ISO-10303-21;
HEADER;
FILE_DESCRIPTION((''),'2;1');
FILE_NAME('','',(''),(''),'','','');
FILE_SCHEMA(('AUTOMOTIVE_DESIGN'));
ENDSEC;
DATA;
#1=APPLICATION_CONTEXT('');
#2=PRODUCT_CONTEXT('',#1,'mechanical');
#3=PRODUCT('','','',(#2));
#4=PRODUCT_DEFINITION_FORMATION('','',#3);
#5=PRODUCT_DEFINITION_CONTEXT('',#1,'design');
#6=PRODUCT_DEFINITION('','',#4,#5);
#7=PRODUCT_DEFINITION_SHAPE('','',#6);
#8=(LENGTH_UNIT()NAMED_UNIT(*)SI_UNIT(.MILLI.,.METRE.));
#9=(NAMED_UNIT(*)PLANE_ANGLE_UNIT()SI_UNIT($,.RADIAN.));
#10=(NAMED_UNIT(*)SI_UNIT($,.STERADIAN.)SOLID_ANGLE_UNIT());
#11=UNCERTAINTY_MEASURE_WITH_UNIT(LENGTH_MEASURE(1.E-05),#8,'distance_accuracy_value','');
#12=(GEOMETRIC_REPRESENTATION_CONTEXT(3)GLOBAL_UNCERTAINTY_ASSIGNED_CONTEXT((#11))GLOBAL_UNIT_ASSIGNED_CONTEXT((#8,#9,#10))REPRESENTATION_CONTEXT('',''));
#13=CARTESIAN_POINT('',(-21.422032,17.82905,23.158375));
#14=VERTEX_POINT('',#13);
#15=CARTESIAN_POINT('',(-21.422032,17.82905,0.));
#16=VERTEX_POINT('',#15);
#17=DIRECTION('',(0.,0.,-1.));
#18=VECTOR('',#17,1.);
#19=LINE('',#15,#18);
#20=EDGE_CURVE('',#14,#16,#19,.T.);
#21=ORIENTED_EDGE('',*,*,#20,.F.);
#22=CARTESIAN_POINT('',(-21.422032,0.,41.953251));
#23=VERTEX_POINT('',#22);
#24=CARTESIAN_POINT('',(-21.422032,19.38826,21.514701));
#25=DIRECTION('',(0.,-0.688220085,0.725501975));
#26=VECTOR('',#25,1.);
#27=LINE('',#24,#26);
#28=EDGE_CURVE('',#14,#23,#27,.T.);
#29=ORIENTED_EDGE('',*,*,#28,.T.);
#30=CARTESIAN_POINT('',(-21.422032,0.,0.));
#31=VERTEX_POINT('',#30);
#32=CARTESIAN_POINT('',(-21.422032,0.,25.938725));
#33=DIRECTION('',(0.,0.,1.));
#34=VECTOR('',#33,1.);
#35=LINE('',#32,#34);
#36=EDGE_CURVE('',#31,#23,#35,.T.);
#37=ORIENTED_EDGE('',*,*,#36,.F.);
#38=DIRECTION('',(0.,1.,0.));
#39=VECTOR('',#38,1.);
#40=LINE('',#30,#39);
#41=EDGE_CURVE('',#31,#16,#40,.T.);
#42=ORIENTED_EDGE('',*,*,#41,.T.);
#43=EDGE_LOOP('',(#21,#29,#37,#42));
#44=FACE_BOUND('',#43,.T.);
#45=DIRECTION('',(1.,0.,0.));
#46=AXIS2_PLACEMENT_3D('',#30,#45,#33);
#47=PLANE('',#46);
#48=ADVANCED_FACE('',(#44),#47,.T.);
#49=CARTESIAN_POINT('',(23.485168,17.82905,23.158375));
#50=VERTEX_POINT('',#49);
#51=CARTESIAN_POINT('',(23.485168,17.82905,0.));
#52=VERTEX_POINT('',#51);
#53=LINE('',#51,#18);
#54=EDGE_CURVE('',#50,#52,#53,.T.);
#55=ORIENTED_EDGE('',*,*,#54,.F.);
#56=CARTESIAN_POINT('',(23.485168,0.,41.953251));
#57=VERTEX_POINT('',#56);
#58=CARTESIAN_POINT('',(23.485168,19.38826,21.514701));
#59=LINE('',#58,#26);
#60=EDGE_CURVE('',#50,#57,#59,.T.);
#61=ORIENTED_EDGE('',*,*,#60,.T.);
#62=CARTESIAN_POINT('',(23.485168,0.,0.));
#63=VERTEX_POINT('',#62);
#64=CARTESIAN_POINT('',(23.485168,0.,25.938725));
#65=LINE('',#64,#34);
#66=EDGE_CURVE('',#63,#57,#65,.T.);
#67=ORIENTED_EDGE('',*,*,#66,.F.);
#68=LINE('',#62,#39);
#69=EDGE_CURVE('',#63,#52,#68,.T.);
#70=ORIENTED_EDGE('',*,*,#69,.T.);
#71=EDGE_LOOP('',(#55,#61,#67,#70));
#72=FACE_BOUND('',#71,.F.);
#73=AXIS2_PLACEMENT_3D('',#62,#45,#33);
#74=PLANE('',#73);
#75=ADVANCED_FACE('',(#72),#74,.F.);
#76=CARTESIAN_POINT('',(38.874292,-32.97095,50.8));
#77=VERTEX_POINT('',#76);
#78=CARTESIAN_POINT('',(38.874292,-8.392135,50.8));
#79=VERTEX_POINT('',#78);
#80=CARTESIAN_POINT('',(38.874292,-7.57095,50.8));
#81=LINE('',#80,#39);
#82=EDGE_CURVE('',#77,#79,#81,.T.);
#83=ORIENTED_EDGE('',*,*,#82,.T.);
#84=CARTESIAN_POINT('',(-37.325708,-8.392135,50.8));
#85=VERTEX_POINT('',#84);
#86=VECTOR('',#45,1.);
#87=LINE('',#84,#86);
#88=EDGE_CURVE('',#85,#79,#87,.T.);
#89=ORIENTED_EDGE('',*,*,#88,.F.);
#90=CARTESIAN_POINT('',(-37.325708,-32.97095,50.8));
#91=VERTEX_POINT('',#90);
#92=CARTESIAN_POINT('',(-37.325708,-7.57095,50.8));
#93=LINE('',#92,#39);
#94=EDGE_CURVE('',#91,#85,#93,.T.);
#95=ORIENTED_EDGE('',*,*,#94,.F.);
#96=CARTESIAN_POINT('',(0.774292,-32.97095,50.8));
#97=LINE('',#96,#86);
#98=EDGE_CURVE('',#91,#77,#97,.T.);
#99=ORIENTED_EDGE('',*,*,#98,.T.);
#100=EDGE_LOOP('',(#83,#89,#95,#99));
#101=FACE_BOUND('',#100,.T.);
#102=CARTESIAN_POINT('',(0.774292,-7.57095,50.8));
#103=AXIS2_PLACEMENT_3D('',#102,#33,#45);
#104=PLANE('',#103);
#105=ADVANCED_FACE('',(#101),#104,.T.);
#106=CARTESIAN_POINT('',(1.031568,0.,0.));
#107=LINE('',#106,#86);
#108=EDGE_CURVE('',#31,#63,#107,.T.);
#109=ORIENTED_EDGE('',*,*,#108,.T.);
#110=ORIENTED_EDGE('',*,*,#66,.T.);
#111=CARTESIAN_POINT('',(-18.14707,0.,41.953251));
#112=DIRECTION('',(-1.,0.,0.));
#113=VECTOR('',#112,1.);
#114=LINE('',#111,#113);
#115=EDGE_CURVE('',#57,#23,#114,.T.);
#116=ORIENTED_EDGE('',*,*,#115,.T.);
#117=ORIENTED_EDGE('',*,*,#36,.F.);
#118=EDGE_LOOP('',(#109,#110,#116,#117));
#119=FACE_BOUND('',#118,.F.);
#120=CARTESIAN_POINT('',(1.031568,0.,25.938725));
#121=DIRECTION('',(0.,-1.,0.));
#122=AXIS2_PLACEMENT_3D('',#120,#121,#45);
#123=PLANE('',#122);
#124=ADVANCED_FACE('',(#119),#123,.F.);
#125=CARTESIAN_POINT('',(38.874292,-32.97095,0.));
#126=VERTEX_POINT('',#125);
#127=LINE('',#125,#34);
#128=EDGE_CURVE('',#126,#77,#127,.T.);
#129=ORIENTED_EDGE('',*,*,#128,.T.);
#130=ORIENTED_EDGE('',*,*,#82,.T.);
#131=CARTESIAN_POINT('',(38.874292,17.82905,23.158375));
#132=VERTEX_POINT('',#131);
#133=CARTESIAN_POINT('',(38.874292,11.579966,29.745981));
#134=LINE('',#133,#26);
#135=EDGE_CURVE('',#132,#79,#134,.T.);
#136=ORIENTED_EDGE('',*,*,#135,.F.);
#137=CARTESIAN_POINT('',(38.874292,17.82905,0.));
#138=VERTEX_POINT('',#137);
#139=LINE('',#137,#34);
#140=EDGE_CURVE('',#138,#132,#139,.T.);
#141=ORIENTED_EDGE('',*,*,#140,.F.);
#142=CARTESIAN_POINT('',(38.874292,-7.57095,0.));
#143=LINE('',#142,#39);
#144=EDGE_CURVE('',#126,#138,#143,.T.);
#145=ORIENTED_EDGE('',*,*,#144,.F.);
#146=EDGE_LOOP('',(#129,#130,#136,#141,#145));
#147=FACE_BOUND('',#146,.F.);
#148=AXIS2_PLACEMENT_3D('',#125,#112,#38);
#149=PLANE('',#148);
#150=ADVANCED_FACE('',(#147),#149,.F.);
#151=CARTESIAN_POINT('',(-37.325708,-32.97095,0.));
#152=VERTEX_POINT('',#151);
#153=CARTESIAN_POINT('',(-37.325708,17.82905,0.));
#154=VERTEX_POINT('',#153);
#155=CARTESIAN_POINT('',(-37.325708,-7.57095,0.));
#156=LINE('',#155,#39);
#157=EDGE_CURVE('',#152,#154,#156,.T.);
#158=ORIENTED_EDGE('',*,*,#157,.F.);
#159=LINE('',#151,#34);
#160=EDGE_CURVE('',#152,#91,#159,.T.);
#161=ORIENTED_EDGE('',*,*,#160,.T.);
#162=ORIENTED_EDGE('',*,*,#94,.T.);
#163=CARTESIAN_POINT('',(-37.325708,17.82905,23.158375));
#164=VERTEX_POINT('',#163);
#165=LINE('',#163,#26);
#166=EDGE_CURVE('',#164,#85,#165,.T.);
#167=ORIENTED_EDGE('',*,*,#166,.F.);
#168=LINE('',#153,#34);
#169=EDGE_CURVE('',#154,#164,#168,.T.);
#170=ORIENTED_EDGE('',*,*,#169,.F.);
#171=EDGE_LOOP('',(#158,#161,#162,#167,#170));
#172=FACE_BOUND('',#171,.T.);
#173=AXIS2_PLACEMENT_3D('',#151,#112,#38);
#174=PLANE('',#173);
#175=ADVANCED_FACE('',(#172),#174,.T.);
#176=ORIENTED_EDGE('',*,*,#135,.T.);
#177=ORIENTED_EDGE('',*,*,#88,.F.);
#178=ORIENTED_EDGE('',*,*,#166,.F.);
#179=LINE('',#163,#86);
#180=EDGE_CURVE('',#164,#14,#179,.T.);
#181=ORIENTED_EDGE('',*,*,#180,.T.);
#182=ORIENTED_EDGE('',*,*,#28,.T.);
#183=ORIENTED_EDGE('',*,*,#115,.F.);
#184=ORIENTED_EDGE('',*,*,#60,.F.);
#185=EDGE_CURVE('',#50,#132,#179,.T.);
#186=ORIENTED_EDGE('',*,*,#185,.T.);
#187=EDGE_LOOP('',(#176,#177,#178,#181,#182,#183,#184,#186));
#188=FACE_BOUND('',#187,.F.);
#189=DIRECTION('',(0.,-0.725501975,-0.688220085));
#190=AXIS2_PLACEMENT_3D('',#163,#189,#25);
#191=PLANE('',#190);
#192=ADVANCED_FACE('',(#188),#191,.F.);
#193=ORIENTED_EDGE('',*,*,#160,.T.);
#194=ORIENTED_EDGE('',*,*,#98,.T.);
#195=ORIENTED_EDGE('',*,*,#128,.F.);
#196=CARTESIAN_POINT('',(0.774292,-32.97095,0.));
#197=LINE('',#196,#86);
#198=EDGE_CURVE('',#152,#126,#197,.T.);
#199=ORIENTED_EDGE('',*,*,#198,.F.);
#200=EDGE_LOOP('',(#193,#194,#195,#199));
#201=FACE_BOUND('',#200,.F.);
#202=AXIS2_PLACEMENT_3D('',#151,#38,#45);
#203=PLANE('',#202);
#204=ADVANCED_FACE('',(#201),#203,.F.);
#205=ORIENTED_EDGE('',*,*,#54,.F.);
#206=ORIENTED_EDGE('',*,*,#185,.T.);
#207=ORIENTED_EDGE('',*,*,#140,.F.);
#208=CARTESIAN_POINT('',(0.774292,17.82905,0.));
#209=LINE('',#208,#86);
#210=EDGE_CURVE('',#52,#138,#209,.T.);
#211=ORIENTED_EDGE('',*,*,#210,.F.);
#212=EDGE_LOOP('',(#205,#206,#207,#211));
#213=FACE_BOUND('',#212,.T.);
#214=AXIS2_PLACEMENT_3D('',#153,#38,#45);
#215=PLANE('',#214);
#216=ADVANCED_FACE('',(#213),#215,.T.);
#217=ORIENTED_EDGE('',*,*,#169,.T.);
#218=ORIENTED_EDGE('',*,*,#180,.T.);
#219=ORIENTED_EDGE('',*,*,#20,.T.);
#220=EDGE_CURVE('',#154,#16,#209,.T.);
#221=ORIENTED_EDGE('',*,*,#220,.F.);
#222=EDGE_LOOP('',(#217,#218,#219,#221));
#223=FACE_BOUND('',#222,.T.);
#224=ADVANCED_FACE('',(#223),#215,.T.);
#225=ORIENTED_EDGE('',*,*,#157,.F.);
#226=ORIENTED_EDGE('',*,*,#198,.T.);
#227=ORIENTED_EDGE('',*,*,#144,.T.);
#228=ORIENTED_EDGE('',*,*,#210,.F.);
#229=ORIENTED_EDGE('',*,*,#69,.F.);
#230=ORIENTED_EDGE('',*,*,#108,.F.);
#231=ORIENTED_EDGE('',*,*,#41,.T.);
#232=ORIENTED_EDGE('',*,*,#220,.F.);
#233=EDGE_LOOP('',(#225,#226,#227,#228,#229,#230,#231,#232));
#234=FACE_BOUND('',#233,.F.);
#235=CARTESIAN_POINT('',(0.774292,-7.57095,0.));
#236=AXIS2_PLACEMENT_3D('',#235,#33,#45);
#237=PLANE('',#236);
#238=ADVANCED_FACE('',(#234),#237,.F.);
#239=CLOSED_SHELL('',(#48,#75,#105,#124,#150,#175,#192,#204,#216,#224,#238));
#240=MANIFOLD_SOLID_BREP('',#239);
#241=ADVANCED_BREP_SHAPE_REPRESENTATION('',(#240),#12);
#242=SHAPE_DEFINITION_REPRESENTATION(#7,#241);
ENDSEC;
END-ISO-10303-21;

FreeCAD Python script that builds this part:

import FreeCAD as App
import Part
import Sketcher

V = App.Vector
Q = App.Units.Quantity


def add_polygon(sketch, points):
    """Adds a closed chain of lines whose ends are joined by coincident constraints."""
    first, n = sketch.GeometryCount, len(points)
    for a, b in zip(points, points[1:] + points[:1]):
        sketch.addGeometry(Part.LineSegment(App.Vector(*a, 0), App.Vector(*b, 0)), False)
    for i in range(n):
        sketch.addConstraint(Sketcher.Constraint("Coincident", first + i, 2, first + (i + 1) % n, 1))

doc = App.newDocument("Part")
body = doc.addObject("PartDesign::Body", "Body")

# Sketch on XY plane
sketch1 = body.newObject("Sketcher::SketchObject", "Sketch")
sketch1.AttachmentSupport = (doc.getObject("XY_Plane"), [""])
sketch1.MapMode = "FlatFace"
add_polygon(sketch1, [(-37.325708, 17.82905), (-37.325708, -32.97095), (38.874292, -32.97095), (38.874292, 17.82905)])  # lines 0-3
sketch1.addConstraint([
    Sketcher.Constraint("Vertical", 0),
    Sketcher.Constraint("Horizontal", 1),
    Sketcher.Constraint("Vertical", 2),
    Sketcher.Constraint("Horizontal", 3),
    Sketcher.Constraint("DistanceX", 1, 1, 1, 2, Q("3 in")),
    Sketcher.Constraint("DistanceY", 0, 2, 0, 1, Q("2 in")),
    Sketcher.Constraint("DistanceY", 0, 2, -1, 1, 32.97095),
    Sketcher.Constraint("DistanceX", -1, 1, 1, 2, 38.874292),
])
pad1 = body.newObject("PartDesign::Pad", "Pad")
pad1.Profile = sketch1
pad1.Length = Q("2 in")

# Sketch on YZ plane
sketch2 = body.newObject("Sketcher::SketchObject", "Sketch001")
sketch2.AttachmentSupport = (doc.getObject("YZ_Plane"), [""])
sketch2.MapMode = "FlatFace"
sketch2.AttachmentOffset = App.Placement(V(0, 0, -37.325708), App.Rotation())
add_polygon(sketch2, [(17.82905, 23.158375), (-8.392135, 50.8), (17.82905, 50.8)])  # lines 0-2
sketch2.addConstraint([
    Sketcher.Constraint("Horizontal", 1),
    Sketcher.Constraint("Vertical", 2),
    Sketcher.Constraint("DistanceY", -1, 1, 0, 2, Q("2 in")),
    Sketcher.Constraint("Distance", 0, Q("1.5 in")),
    Sketcher.Constraint("DistanceX", 1, 1, 1, 2, 26.221185),
    Sketcher.Constraint("DistanceX", -1, 1, 1, 2, 17.82905),
])
pocket1 = body.newObject("PartDesign::Pocket", "Pocket")
pocket1.Profile = sketch2
pocket1.Length = Q("3.22 in")
pocket1.Reversed = True

# Sketch on XZ plane
sketch3 = body.newObject("Sketcher::SketchObject", "Sketch002")
sketch3.AttachmentSupport = (doc.getObject("XZ_Plane"), [""])
sketch3.MapMode = "FlatFace"
add_polygon(sketch3, [(-21.422032, 51.87745), (-21.422032, 0), (23.485168, 0), (23.485168, 51.87745)])  # lines 0-3
sketch3.addConstraint([
    Sketcher.Constraint("Vertical", 0),
    Sketcher.Constraint("Horizontal", 1),
    Sketcher.Constraint("Vertical", 2),
    Sketcher.Constraint("Horizontal", 3),
    Sketcher.Constraint("PointOnObject", 0, 2, -1),
    Sketcher.Constraint("DistanceX", 1, 1, 1, 2, Q("1.768 in")),
    Sketcher.Constraint("DistanceY", 0, 2, 0, 1, 51.87745),
    Sketcher.Constraint("DistanceX", -1, 1, 1, 2, 23.485168),
])
pocket2 = body.newObject("PartDesign::Pocket", "Pocket001")
pocket2.Profile = sketch3
pocket2.Length = Q("1.86 in")

doc.recompute()
